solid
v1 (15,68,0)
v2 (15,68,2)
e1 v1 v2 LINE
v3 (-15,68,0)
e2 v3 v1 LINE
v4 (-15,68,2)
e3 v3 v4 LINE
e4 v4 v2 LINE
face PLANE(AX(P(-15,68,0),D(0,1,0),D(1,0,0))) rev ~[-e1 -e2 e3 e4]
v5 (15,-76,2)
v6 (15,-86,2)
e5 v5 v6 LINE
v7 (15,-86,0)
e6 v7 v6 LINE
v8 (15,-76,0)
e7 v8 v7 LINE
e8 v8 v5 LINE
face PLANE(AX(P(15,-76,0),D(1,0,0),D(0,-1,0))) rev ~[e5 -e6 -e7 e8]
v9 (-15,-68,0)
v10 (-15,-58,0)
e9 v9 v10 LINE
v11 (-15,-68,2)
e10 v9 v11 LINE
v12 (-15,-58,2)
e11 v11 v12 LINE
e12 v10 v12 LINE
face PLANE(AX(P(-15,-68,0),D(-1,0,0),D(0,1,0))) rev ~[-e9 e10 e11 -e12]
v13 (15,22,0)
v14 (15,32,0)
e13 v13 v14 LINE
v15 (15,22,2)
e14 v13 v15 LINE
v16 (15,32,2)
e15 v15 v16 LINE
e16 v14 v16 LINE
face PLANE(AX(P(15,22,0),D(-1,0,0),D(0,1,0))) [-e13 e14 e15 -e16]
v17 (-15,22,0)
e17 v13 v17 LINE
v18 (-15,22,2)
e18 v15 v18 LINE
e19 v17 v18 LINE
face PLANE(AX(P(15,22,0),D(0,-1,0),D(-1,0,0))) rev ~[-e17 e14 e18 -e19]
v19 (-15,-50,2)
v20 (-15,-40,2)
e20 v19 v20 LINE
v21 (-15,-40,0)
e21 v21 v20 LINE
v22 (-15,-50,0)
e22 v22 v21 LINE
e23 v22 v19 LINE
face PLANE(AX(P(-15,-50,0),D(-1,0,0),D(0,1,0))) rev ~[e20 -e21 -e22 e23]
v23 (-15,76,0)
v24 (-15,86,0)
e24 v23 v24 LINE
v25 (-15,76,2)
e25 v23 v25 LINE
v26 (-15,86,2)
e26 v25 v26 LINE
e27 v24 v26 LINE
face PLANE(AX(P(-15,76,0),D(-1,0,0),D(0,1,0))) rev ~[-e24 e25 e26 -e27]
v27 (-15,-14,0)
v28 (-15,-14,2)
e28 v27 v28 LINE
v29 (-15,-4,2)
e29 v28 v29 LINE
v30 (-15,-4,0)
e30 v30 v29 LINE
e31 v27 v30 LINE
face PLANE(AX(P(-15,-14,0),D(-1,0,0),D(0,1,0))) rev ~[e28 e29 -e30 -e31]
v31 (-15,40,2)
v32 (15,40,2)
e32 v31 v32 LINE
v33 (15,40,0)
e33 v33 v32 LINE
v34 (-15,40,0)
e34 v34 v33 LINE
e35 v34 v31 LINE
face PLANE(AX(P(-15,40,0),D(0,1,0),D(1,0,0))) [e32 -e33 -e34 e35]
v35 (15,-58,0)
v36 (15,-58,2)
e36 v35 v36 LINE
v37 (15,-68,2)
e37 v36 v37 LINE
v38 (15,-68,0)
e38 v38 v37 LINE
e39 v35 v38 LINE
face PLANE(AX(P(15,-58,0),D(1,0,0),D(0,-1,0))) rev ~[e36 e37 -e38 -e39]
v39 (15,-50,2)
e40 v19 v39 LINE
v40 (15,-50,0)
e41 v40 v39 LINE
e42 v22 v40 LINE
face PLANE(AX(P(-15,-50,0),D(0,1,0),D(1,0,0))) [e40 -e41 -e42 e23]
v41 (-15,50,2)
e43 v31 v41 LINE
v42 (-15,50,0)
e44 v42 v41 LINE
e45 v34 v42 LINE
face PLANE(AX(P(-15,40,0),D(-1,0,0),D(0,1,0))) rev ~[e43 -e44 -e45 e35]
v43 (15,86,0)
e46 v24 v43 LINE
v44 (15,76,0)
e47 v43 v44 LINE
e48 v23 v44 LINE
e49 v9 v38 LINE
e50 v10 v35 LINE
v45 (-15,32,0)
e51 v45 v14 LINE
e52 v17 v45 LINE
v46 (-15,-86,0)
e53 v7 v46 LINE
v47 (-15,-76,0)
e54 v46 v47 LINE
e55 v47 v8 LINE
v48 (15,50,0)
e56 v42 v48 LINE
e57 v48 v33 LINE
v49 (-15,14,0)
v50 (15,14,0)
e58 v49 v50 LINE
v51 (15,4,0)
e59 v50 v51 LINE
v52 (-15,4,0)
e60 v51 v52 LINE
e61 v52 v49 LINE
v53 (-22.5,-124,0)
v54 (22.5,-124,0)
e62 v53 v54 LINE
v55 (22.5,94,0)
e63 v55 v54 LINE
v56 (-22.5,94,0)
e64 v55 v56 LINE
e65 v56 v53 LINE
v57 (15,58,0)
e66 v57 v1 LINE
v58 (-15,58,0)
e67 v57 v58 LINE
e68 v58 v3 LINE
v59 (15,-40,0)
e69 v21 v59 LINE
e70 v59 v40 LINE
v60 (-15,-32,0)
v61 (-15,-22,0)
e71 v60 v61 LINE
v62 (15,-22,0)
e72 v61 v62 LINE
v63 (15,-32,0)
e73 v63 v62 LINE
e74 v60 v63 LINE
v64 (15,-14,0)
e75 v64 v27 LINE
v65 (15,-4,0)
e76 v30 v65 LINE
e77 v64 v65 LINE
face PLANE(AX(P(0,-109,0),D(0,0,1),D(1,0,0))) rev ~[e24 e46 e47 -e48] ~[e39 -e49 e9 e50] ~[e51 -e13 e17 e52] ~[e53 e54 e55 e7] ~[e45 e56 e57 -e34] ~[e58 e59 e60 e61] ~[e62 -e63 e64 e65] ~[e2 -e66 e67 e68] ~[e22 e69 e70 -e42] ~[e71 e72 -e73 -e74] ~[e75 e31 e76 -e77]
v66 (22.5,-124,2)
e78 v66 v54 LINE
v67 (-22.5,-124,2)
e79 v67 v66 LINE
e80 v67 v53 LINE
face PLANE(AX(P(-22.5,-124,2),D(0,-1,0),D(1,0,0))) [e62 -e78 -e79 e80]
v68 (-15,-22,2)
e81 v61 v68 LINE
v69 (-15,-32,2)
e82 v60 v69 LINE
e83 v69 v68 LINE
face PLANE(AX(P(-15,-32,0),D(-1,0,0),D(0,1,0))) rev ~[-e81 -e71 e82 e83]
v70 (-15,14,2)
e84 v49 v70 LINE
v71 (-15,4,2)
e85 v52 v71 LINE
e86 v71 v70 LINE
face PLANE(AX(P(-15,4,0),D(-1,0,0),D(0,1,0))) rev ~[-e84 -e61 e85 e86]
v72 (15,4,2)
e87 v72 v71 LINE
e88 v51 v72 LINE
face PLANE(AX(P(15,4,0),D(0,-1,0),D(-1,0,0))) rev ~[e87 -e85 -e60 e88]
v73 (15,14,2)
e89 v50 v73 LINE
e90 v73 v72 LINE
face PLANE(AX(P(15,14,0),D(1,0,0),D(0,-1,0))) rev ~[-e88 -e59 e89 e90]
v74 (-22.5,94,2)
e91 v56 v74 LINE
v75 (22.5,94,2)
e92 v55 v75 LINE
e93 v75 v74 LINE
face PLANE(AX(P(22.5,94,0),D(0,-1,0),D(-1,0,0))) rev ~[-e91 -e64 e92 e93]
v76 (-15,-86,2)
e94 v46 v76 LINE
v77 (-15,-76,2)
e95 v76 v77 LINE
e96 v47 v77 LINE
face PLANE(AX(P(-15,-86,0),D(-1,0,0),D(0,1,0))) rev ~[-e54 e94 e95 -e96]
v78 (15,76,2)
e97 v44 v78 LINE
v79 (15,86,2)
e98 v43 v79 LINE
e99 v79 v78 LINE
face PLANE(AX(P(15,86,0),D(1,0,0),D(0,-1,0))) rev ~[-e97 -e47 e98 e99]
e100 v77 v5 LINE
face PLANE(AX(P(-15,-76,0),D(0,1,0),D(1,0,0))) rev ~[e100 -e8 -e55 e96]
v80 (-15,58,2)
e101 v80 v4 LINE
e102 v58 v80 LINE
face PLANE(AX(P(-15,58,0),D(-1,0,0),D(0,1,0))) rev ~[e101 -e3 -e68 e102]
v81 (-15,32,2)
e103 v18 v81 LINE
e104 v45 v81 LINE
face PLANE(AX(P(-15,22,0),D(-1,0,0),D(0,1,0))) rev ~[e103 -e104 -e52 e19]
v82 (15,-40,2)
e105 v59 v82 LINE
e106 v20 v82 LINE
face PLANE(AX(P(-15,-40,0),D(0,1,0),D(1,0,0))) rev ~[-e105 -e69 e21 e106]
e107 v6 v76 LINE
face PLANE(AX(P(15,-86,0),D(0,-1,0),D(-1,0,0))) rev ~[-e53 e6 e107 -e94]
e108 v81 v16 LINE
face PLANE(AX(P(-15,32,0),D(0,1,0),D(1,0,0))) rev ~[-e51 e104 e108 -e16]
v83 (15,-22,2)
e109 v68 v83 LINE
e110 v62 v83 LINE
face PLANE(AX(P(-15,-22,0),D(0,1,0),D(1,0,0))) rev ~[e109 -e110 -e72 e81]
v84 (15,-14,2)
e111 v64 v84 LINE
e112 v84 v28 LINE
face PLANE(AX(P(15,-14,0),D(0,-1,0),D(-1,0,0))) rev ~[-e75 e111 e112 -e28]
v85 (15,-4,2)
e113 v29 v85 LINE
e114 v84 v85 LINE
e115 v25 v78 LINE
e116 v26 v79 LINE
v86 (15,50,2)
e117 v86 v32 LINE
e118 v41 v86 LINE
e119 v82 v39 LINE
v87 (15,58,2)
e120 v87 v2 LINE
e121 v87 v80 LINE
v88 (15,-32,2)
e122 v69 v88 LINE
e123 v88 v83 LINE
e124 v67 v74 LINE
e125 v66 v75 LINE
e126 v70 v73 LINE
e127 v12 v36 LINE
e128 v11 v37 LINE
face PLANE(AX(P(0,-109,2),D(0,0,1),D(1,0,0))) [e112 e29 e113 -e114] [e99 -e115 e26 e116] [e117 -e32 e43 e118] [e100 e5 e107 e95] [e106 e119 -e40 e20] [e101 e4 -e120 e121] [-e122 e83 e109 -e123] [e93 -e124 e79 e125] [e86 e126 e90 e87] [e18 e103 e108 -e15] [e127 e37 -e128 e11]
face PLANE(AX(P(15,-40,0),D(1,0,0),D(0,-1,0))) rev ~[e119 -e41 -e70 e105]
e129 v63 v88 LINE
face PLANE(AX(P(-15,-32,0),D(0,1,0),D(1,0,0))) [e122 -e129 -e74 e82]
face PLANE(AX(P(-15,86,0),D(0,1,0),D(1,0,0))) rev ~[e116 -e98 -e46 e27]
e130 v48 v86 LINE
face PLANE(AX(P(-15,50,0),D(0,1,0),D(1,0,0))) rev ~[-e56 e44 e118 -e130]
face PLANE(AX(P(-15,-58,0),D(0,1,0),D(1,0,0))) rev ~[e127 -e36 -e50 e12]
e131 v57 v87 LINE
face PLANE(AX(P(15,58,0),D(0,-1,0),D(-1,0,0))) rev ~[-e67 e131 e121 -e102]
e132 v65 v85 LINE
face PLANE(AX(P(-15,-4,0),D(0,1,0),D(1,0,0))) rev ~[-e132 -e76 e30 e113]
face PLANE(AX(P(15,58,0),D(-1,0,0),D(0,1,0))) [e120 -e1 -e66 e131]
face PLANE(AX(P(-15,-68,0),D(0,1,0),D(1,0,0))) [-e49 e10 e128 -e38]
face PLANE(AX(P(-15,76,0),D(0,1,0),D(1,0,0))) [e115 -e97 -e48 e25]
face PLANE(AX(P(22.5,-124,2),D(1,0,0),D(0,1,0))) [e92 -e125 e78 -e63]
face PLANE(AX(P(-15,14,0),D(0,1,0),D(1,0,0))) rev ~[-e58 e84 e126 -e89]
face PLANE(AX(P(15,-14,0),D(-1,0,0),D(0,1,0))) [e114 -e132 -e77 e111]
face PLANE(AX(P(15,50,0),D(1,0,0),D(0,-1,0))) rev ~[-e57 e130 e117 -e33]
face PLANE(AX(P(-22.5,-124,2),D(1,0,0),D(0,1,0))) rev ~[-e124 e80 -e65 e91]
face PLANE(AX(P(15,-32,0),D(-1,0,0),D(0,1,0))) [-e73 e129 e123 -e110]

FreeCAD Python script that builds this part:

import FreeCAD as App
import Part
import Sketcher


def add_polygon(sketch, points):
    """Adds a closed chain of lines whose ends are joined by coincident constraints."""
    first, n = sketch.GeometryCount, len(points)
    for a, b in zip(points, points[1:] + points[:1]):
        sketch.addGeometry(Part.LineSegment(App.Vector(*a, 0), App.Vector(*b, 0)), False)
    for i in range(n):
        sketch.addConstraint(Sketcher.Constraint("Coincident", first + i, 2, first + (i + 1) % n, 1))

doc = App.newDocument("Part")
body = doc.addObject("PartDesign::Body", "Body")

# Sketch on XY plane
sketch1 = body.newObject("Sketcher::SketchObject", "Sketch")
sketch1.AttachmentSupport = (doc.getObject("XY_Plane"), [""])
sketch1.MapMode = "FlatFace"
add_polygon(sketch1, [(22, 94), (-22, 94), (-22, -94), (22, -94)])  # lines 0-3
add_polygon(sketch1, [(-15, -40), (15, -40), (15, -50), (-15, -50)])  # lines 4-7
add_polygon(sketch1, [(15, -58), (15, -68), (-15, -68), (-15, -58)])  # lines 8-11
add_polygon(sketch1, [(15, -76), (15, -86), (-15, -86), (-15, -76)])  # lines 12-15
add_polygon(sketch1, [(15, -32), (-15, -32), (-15, -22), (15, -22)])  # lines 16-19
add_polygon(sketch1, [(15, -14), (-15, -14), (-15, -4), (15, -4)])  # lines 20-23
add_polygon(sketch1, [(15, 14), (15, 4), (-15, 4), (-15, 14)])  # lines 24-27
add_polygon(sketch1, [(15, 22), (-15, 22), (-15, 32), (15, 32)])  # lines 28-31
add_polygon(sketch1, [(15, 40), (-15, 40), (-15, 50), (15, 50)])  # lines 32-35
add_polygon(sketch1, [(15, 58), (-15, 58), (-15, 68), (15, 68)])  # lines 36-39
add_polygon(sketch1, [(-15, 76), (-15, 86), (15, 86), (15, 76)])  # lines 40-43
sketch1.addConstraint([
    Sketcher.Constraint("Horizontal", 0),
    Sketcher.Constraint("Vertical", 1),
    Sketcher.Constraint("Horizontal", 2),
    Sketcher.Constraint("Vertical", 3),
    Sketcher.Constraint("Horizontal", 4),
    Sketcher.Constraint("Vertical", 5),
    Sketcher.Constraint("Horizontal", 6),
    Sketcher.Constraint("Vertical", 7),
    Sketcher.Constraint("Vertical", 8),
    Sketcher.Constraint("Horizontal", 9),
    Sketcher.Constraint("Vertical", 10),
    Sketcher.Constraint("Horizontal", 11),
    Sketcher.Constraint("Vertical", 12),
    Sketcher.Constraint("Horizontal", 13),
    Sketcher.Constraint("Vertical", 14),
    Sketcher.Constraint("Horizontal", 15),
    Sketcher.Constraint("Horizontal", 16),
    Sketcher.Constraint("Vertical", 17),
    Sketcher.Constraint("Horizontal", 18),
    Sketcher.Constraint("Vertical", 19),
    Sketcher.Constraint("Horizontal", 20),
    Sketcher.Constraint("Vertical", 21),
    Sketcher.Constraint("Horizontal", 22),
    Sketcher.Constraint("Vertical", 23),
    Sketcher.Constraint("Vertical", 24),
    Sketcher.Constraint("Horizontal", 25),
    Sketcher.Constraint("Vertical", 26),
    Sketcher.Constraint("Horizontal", 27),
    Sketcher.Constraint("Horizontal", 28),
    Sketcher.Constraint("Vertical", 29),
    Sketcher.Constraint("Horizontal", 30),
    Sketcher.Constraint("Vertical", 31),
    Sketcher.Constraint("Horizontal", 32),
    Sketcher.Constraint("Vertical", 33),
    Sketcher.Constraint("Horizontal", 34),
    Sketcher.Constraint("Vertical", 35),
    Sketcher.Constraint("Horizontal", 36),
    Sketcher.Constraint("Vertical", 37),
    Sketcher.Constraint("Horizontal", 38),
    Sketcher.Constraint("Vertical", 39),
    Sketcher.Constraint("Vertical", 40),
    Sketcher.Constraint("Horizontal", 41),
    Sketcher.Constraint("Vertical", 42),
    Sketcher.Constraint("Horizontal", 43),
    Sketcher.Constraint("Symmetric", 0, 2, 2, 2, -1, 1),
    Sketcher.Constraint("Symmetric", 21, 2, 24, 2, -1, 1),
    Sketcher.Constraint("Symmetric", 23, 2, 26, 2, -1, 1),
    Sketcher.Constraint("Symmetric", 18, 2, 28, 2, -1, 1),
    Sketcher.Constraint("Symmetric", 16, 2, 30, 2, -1, 1),
    Sketcher.Constraint("Symmetric", 4, 2, 32, 2, -1, 1),
    Sketcher.Constraint("Symmetric", 6, 2, 34, 2, -1, 1),
    Sketcher.Constraint("Symmetric", 11, 2, 36, 2, -1, 1),
    Sketcher.Constraint("Symmetric", 9, 2, 38, 2, -1, 1),
    Sketcher.Constraint("Symmetric", 12, 2, 40, 2, -1, 1),
    Sketcher.Constraint("Symmetric", 14, 2, 42, 2, -1, 1),
    Sketcher.Constraint("Vertical", 5, 2, 8, 2),
    Sketcher.Constraint("Vertical", 7, 2, 9, 2),
    Sketcher.Constraint("Vertical", 11, 2, 12, 2),
    Sketcher.Constraint("Vertical", 10, 2, 13, 2),
    Sketcher.Constraint("Vertical", 14, 2, 16, 2),
    Sketcher.Constraint("Vertical", 15, 2, 18, 2),
    Sketcher.Constraint("Vertical", 17, 2, 20, 2),
    Sketcher.Constraint("Vertical", 19, 2, 22, 2),
    Sketcher.Constraint("Vertical", 23, 2, 24, 2),
    Sketcher.Constraint("Equal", 7, 8),
    Sketcher.Constraint("Equal", 10, 12),
    Sketcher.Constraint("Equal", 14, 17),
    Sketcher.Constraint("Equal", 19, 21),
    Sketcher.Constraint("DistanceX", 0, 2, 0, 1, 45.0),
    Sketcher.Constraint("DistanceX", 4, 1, 4, 2, 30.0),
    Sketcher.Constraint("DistanceY", 1, 2, 1, 1, 188.0),
    Sketcher.Constraint("DistanceY", 5, 2, 5, 1, 10.0),
    Sketcher.Constraint("DistanceY", 4, 2, -1, 1, 40.0),
    Sketcher.Constraint("DistanceY", 8, 2, -1, 1, 68.0),
    Sketcher.Constraint("DistanceY", 12, 2, -1, 1, 86.0),
    Sketcher.Constraint("DistanceY", 16, 2, -1, 1, 32.0),
    Sketcher.Constraint("DistanceY", 20, 2, -1, 1, 14.0),
])
pad1 = body.newObject("PartDesign::Pad", "Pad")
pad1.Profile = sketch1
pad1.Length = 2

# Sketch on XY plane
sketch2 = body.newObject("Sketcher::SketchObject", "Sketch001")
sketch2.AttachmentSupport = (doc.getObject("XY_Plane"), [""])
sketch2.MapMode = "FlatFace"
sketch2.AttachmentOffset = App.Placement(App.Vector(0, 0, 2), App.Rotation())
add_polygon(sketch2, [(-22, -94), (-22, -124), (22, -124), (22, -94)])  # lines 0-3
sketch2.addConstraint([
    Sketcher.Constraint("Vertical", 0),
    Sketcher.Constraint("Horizontal", 1),
    Sketcher.Constraint("Vertical", 2),
    Sketcher.Constraint("Horizontal", 3),
    Sketcher.Constraint("DistanceX", 1, 1, 1, 2, 45.0),
    Sketcher.Constraint("DistanceY", 0, 2, 0, 1, 30.0),
    Sketcher.Constraint("DistanceY", 0, 2, -1, 1, 124.0),
    Sketcher.Constraint("DistanceX", 0, 2, -1, 1, 22.5),
])
pad2 = body.newObject("PartDesign::Pad", "Pad001")
pad2.Profile = sketch2
pad2.Length = 2
pad2.Reversed = True

doc.recompute()
